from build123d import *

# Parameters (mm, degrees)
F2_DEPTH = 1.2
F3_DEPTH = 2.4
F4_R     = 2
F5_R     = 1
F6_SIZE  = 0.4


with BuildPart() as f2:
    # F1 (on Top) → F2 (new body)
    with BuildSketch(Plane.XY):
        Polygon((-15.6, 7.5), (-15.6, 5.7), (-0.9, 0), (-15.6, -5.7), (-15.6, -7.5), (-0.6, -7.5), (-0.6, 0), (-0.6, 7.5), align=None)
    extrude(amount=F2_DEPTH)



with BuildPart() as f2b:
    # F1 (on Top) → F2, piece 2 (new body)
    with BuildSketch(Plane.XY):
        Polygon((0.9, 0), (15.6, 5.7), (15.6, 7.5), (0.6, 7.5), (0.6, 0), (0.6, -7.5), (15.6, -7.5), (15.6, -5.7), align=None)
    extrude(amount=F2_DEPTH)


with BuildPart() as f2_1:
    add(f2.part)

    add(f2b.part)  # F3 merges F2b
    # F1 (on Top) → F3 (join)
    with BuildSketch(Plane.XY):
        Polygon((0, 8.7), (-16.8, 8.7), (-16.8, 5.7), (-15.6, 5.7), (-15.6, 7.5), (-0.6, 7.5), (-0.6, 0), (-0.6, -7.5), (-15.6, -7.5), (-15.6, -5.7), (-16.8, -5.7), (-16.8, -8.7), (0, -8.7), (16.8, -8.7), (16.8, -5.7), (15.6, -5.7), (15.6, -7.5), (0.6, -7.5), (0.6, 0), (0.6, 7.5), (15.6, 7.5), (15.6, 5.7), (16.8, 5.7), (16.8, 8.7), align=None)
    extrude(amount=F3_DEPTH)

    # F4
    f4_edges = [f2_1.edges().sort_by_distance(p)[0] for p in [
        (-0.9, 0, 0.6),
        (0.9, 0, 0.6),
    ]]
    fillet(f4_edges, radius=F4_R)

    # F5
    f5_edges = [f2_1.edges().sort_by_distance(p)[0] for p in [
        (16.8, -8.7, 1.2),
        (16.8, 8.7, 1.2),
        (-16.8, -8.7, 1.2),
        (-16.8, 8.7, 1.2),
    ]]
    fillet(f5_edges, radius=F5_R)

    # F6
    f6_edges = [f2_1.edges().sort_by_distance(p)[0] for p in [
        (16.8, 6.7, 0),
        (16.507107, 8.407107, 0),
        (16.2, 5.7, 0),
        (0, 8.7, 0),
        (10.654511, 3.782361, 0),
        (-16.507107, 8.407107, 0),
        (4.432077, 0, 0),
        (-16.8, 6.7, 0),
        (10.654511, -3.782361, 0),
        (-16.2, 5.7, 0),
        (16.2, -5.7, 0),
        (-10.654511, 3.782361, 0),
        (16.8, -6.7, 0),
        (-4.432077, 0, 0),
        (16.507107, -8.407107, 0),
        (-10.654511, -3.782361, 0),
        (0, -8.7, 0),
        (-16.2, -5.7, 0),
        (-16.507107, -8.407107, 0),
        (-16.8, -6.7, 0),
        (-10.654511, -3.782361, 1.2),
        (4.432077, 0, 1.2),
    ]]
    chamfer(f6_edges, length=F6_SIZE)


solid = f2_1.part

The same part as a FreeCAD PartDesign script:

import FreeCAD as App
import Part
import Sketcher
Q = App.Units.Quantity


def edges_at(feature, points):
    """Names of the edges that pass closest to the given points."""
    edges = feature.Shape.Edges
    near = lambda p: min(range(len(edges)), key=lambda i: edges[i].distToShape(Part.Vertex(*p))[0])
    return sorted({f"Edge{near(p) + 1}" for p in points})


def add_polygon(sketch, points):
    """Adds a closed chain of lines whose ends are joined by coincident constraints."""
    first, n = sketch.GeometryCount, len(points)
    for a, b in zip(points, points[1:] + points[:1]):
        sketch.addGeometry(Part.LineSegment(App.Vector(*a, 0), App.Vector(*b, 0)), False)
    for i in range(n):
        sketch.addConstraint(Sketcher.Constraint("Coincident", first + i, 2, first + (i + 1) % n, 1))

doc = App.newDocument("Part")
params = doc.addObject("Spreadsheet::Sheet", "Params")
for row, (alias, value) in enumerate([
    ("sketch1_width", "15 mm"),
    ("sketch1_height", "1.8 mm"),
    ("pad1_length", "1.2 mm"),
    ("sketch2_width", "15 mm"),
    ("sketch2_height", "1.8 mm"),
    ("pad2_length", "1.2 mm"),
    ("sketch3_width", "15 mm"),
    ("sketch3_height", "3 mm"),
    ("sketch3_width2", "1.2 mm"),
    ("sketch3_width3", "33.6 mm"),
    ("sketch3_height2", "1.8 mm"),
    ("pad3_length", "2.4 mm"),
    ("fillet_radius", "2 mm"),
    ("fillet2_radius", "1 mm"),
    ("chamfer_size", "0.4 mm"),
], start=1):
    params.set(f"A{row}", alias)
    params.set(f"B{row}", "=" + value)
    params.setAlias(f"B{row}", alias)

body = doc.addObject("PartDesign::Body", "Body")

# Sketch on XY plane
sketch1 = body.newObject("Sketcher::SketchObject", "Sketch")
sketch1.AttachmentSupport = (doc.getObject("XY_Plane"), [""])
sketch1.MapMode = "FlatFace"
add_polygon(sketch1, [(-15.6, 7.5), (-15.6, 5.7), (-0.9, 0), (-15.6, -5.7), (-15.6, -7.5), (-0.6, -7.5), (-0.6, 7.5)])  # lines 0-6
sketch1.addConstraint([
    Sketcher.Constraint("Vertical", 0),
    Sketcher.Constraint("Vertical", 3),
    Sketcher.Constraint("Horizontal", 4),
    Sketcher.Constraint("Vertical", 5),
    Sketcher.Constraint("Horizontal", 6),
    Sketcher.Constraint("Symmetric", 0, 2, 2, 2, -1),
    Sketcher.Constraint("PointOnObject", 1, 2, -1),
    Sketcher.Constraint("Equal", 0, 3),
    Sketcher.Constraint("Equal", 6, 5),
    Sketcher.Constraint("DistanceX", 4, 1, 4, 2, Q("15 mm")),
    Sketcher.Constraint("DistanceY", 0, 2, 0, 1, Q("1.8 mm")),
    Sketcher.Constraint("DistanceX", 0, 2, -1, 1, Q("15.6 mm")),
    Sketcher.Constraint("DistanceX", 1, 2, -1, 1, Q("0.9 mm")),
])
sketch1.setExpression("Constraints[16]", "Params.sketch1_width")
sketch1.setExpression("Constraints[17]", "Params.sketch1_height")
pad1 = body.newObject("PartDesign::Pad", "Pad")
pad1.Profile = sketch1
pad1.setExpression("Length", "Params.pad1_length")
body2 = doc.addObject("PartDesign::Body", "Body001")

# Sketch on XY plane
sketch2 = body2.newObject("Sketcher::SketchObject", "Sketch001")
sketch2.AttachmentSupport = (doc.getObject("XY_Plane001"), [""])
sketch2.MapMode = "FlatFace"
add_polygon(sketch2, [(0.9, 0), (15.6, 5.7), (15.6, 7.5), (0.6, 7.5), (0.6, -7.5), (15.6, -7.5), (15.6, -5.7)])  # lines 0-6
sketch2.addConstraint([
    Sketcher.Constraint("Vertical", 1),
    Sketcher.Constraint("Horizontal", 2),
    Sketcher.Constraint("Vertical", 3),
    Sketcher.Constraint("Horizontal", 4),
    Sketcher.Constraint("Vertical", 5),
    Sketcher.Constraint("Symmetric", 1, 2, 4, 2, -1),
    Sketcher.Constraint("PointOnObject", 6, 2, -1),
    Sketcher.Constraint("Equal", 4, 3),
    Sketcher.Constraint("Equal", 1, 5),
    Sketcher.Constraint("DistanceX", 2, 2, 2, 1, Q("15 mm")),
    Sketcher.Constraint("DistanceY", 1, 1, 1, 2, Q("1.8 mm")),
    Sketcher.Constraint("DistanceX", -1, 1, 0, 2, Q("15.6 mm")),
    Sketcher.Constraint("DistanceX", -1, 1, 6, 2, Q("0.9 mm")),
])
sketch2.setExpression("Constraints[16]", "Params.sketch2_width")
sketch2.setExpression("Constraints[17]", "Params.sketch2_height")
pad2 = body2.newObject("PartDesign::Pad", "Pad001")
pad2.Profile = sketch2
pad2.setExpression("Length", "Params.pad2_length")
body.AllowCompound = True
doc.recompute()

boolean = body.newObject("PartDesign::Boolean", "Boolean")
boolean.Type = "Fuse"
boolean.addObjects([body2])

# Sketch on XY plane
sketch3 = body.newObject("Sketcher::SketchObject", "Sketch002")
sketch3.AttachmentSupport = (doc.getObject("XY_Plane"), [""])
sketch3.MapMode = "FlatFace"
add_polygon(sketch3, [(-16.8, 8.7), (-16.8, 5.7), (-15.6, 5.7), (-15.6, 7.5), (-0.6, 7.5), (-0.6, -7.5), (-15.6, -7.5), (-15.6, -5.7), (-16.8, -5.7), (-16.8, -8.7), (16.8, -8.7), (16.8, -5.7), (15.6, -5.7), (15.6, -7.5), (0.6, -7.5), (0.6, 7.5), (15.6, 7.5), (15.6, 5.7), (16.8, 5.7), (16.8, 8.7)])  # lines 0-19
sketch3.addConstraint([
    Sketcher.Constraint("Vertical", 0),
    Sketcher.Constraint("Horizontal", 1),
    Sketcher.Constraint("Vertical", 2),
    Sketcher.Constraint("Horizontal", 3),
    Sketcher.Constraint("Vertical", 4),
    Sketcher.Constraint("Horizontal", 5),
    Sketcher.Constraint("Vertical", 6),
    Sketcher.Constraint("Horizontal", 7),
    Sketcher.Constraint("Vertical", 8),
    Sketcher.Constraint("Horizontal", 9),
    Sketcher.Constraint("Vertical", 10),
    Sketcher.Constraint("Horizontal", 11),
    Sketcher.Constraint("Vertical", 12),
    Sketcher.Constraint("Horizontal", 13),
    Sketcher.Constraint("Vertical", 14),
    Sketcher.Constraint("Horizontal", 15),
    Sketcher.Constraint("Vertical", 16),
    Sketcher.Constraint("Horizontal", 17),
    Sketcher.Constraint("Vertical", 18),
    Sketcher.Constraint("Horizontal", 19),
    Sketcher.Constraint("Symmetric", 0, 2, 10, 2, -1, 1),
    Sketcher.Constraint("Symmetric", 2, 2, 12, 2, -1, 1),
    Sketcher.Constraint("Symmetric", 4, 2, 14, 2, -1, 1),
    Sketcher.Constraint("Symmetric", 6, 2, 16, 2, -1, 1),
    Sketcher.Constraint("Symmetric", 8, 2, 18, 2, -1, 1),
    Sketcher.Constraint("Symmetric", 7, 2, 10, 2, -2),
    Sketcher.Constraint("Symmetric", 5, 2, 12, 2, -2),
    Sketcher.Constraint("Equal", 15, 4),
    Sketcher.Constraint("DistanceX", 3, 1, 3, 2, Q("15 mm")),
    Sketcher.Constraint("DistanceY", 0, 2, 0, 1, Q("3 mm")),
    Sketcher.Constraint("DistanceX", 1, 1, 1, 2, Q("1.2 mm")),
    Sketcher.Constraint("DistanceX", 9, 1, 9, 2, Q("33.6 mm")),
    Sketcher.Constraint("DistanceY", 2, 1, 2, 2, Q("1.8 mm")),
])
sketch3.setExpression("Constraints[48]", "Params.sketch3_width")
sketch3.setExpression("Constraints[49]", "Params.sketch3_height")
sketch3.setExpression("Constraints[50]", "Params.sketch3_width2")
sketch3.setExpression("Constraints[51]", "Params.sketch3_width3")
sketch3.setExpression("Constraints[52]", "Params.sketch3_height2")
pad3 = body.newObject("PartDesign::Pad", "Pad002")
pad3.Profile = sketch3
pad3.setExpression("Length", "Params.pad3_length")
doc.recompute()

fillet = body.newObject("PartDesign::Fillet", "Fillet")
fillet.Base = (pad3, edges_at(pad3, [(-0.9, 0, 0.6), (0.9, 0, 0.6)]))
fillet.setExpression("Radius", "Params.fillet_radius")
doc.recompute()

fillet2 = body.newObject("PartDesign::Fillet", "Fillet001")
fillet2.Base = (fillet, edges_at(fillet, [
    (16.8, -8.7, 1.2),
    (16.8, 8.7, 1.2),
    (-16.8, -8.7, 1.2),
    (-16.8, 8.7, 1.2),
]))
fillet2.setExpression("Radius", "Params.fillet2_radius")
doc.recompute()

chamfer = body.newObject("PartDesign::Chamfer", "Chamfer")
chamfer.Base = (fillet2, edges_at(fillet2, [
    (16.8, 6.7, 0),
    (16.507, 8.407, 0),
    (16.2, 5.7, 0),
    (0, 8.7, 0),
    (10.655, 3.782, 0),
    (-16.507, 8.407, 0),
    (4.432, 0, 0),
    (-16.8, 6.7, 0),
    (10.655, -3.782, 0),
    (-16.2, 5.7, 0),
    (16.2, -5.7, 0),
    (-10.655, 3.782, 0),
    (16.8, -6.7, 0),
    (-4.432, 0, 0),
    (16.507, -8.407, 0),
    (-10.655, -3.782, 0),
    (0, -8.7, 0),
    (-16.2, -5.7, 0),
    (-16.507, -8.407, 0),
    (-16.8, -6.7, 0),
    (-10.655, -3.782, 1.2),
    (4.432, 0, 1.2),
]))
chamfer.setExpression("Size", "Params.chamfer_size")

doc.recompute()
